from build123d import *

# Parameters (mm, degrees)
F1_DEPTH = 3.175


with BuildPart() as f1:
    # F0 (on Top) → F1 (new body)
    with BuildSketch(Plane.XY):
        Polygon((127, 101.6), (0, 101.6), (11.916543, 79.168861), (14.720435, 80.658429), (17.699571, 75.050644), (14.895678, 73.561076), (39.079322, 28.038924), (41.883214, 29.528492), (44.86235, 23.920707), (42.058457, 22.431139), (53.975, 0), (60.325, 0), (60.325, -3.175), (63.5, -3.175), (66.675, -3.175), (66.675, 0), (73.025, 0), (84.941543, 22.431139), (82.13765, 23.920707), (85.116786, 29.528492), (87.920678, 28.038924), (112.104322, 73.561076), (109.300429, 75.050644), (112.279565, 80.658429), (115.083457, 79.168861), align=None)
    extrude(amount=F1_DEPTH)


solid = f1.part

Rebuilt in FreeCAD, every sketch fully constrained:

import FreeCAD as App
import Part
import Sketcher
from FreeCAD import Vector
Q = App.Units.Quantity

doc = App.newDocument("Part")
body = doc.addObject("PartDesign::Body", "Body")

sketch1 = doc.addObject("Sketcher::SketchObject", "Sketch")
body.addObject(sketch1)
sketch1.AttachmentSupport = (doc.XY_Plane, [""])
sketch1.MapMode = "FlatFace"
sketch1.addGeometry(Part.LineSegment(Vector(127, 101.6, 0), Vector(0, 101.6, 0)), False)
sketch1.addGeometry(Part.LineSegment(Vector(0, 101.6, 0), Vector(11.916543, 79.168861, 0)), False)
sketch1.addGeometry(Part.LineSegment(Vector(11.916543, 79.168861, 0), Vector(14.720435, 80.658429, 0)), False)
sketch1.addGeometry(Part.LineSegment(Vector(14.720435, 80.658429, 0), Vector(17.699571, 75.050644, 0)), False)
sketch1.addGeometry(Part.LineSegment(Vector(17.699571, 75.050644, 0), Vector(14.895678, 73.561076, 0)), False)
sketch1.addGeometry(Part.LineSegment(Vector(14.895678, 73.561076, 0), Vector(39.079322, 28.038924, 0)), False)
sketch1.addGeometry(Part.LineSegment(Vector(39.079322, 28.038924, 0), Vector(41.883214, 29.528492, 0)), False)
sketch1.addGeometry(Part.LineSegment(Vector(41.883214, 29.528492, 0), Vector(44.86235, 23.920707, 0)), False)
sketch1.addGeometry(Part.LineSegment(Vector(44.86235, 23.920707, 0), Vector(42.058457, 22.431139, 0)), False)
sketch1.addGeometry(Part.LineSegment(Vector(42.058457, 22.431139, 0), Vector(53.975, 0, 0)), False)
sketch1.addGeometry(Part.LineSegment(Vector(53.975, 0, 0), Vector(60.325, 0, 0)), False)
sketch1.addGeometry(Part.LineSegment(Vector(60.325, 0, 0), Vector(60.325, -3.175, 0)), False)
sketch1.addGeometry(Part.LineSegment(Vector(60.325, -3.175, 0), Vector(66.675, -3.175, 0)), False)
sketch1.addGeometry(Part.LineSegment(Vector(66.675, -3.175, 0), Vector(66.675, 0, 0)), False)
sketch1.addGeometry(Part.LineSegment(Vector(66.675, 0, 0), Vector(73.025, 0, 0)), False)
sketch1.addGeometry(Part.LineSegment(Vector(73.025, 0, 0), Vector(84.941543, 22.431139, 0)), False)
sketch1.addGeometry(Part.LineSegment(Vector(84.941543, 22.431139, 0), Vector(82.13765, 23.920707, 0)), False)
sketch1.addGeometry(Part.LineSegment(Vector(82.13765, 23.920707, 0), Vector(85.116786, 29.528492, 0)), False)
sketch1.addGeometry(Part.LineSegment(Vector(85.116786, 29.528492, 0), Vector(87.920678, 28.038924, 0)), False)
sketch1.addGeometry(Part.LineSegment(Vector(87.920678, 28.038924, 0), Vector(112.104322, 73.561076, 0)), False)
sketch1.addGeometry(Part.LineSegment(Vector(112.104322, 73.561076, 0), Vector(109.300429, 75.050644, 0)), False)
sketch1.addGeometry(Part.LineSegment(Vector(109.300429, 75.050644, 0), Vector(112.279565, 80.658429, 0)), False)
sketch1.addGeometry(Part.LineSegment(Vector(112.279565, 80.658429, 0), Vector(115.083457, 79.168861, 0)), False)
sketch1.addGeometry(Part.LineSegment(Vector(115.083457, 79.168861, 0), Vector(127, 101.6, 0)), False)
sketch1.addConstraint(Sketcher.Constraint("Coincident", 0, 2, 1, 1))
sketch1.addConstraint(Sketcher.Constraint("Coincident", 1, 2, 2, 1))
sketch1.addConstraint(Sketcher.Constraint("Coincident", 2, 2, 3, 1))
sketch1.addConstraint(Sketcher.Constraint("Coincident", 3, 2, 4, 1))
sketch1.addConstraint(Sketcher.Constraint("Coincident", 4, 2, 5, 1))
sketch1.addConstraint(Sketcher.Constraint("Coincident", 5, 2, 6, 1))
sketch1.addConstraint(Sketcher.Constraint("Coincident", 6, 2, 7, 1))
sketch1.addConstraint(Sketcher.Constraint("Coincident", 7, 2, 8, 1))
sketch1.addConstraint(Sketcher.Constraint("Coincident", 8, 2, 9, 1))
sketch1.addConstraint(Sketcher.Constraint("Coincident", 9, 2, 10, 1))
sketch1.addConstraint(Sketcher.Constraint("Coincident", 10, 2, 11, 1))
sketch1.addConstraint(Sketcher.Constraint("Coincident", 11, 2, 12, 1))
sketch1.addConstraint(Sketcher.Constraint("Coincident", 12, 2, 13, 1))
sketch1.addConstraint(Sketcher.Constraint("Coincident", 13, 2, 14, 1))
sketch1.addConstraint(Sketcher.Constraint("Coincident", 14, 2, 15, 1))
sketch1.addConstraint(Sketcher.Constraint("Coincident", 15, 2, 16, 1))
sketch1.addConstraint(Sketcher.Constraint("Coincident", 16, 2, 17, 1))
sketch1.addConstraint(Sketcher.Constraint("Coincident", 17, 2, 18, 1))
sketch1.addConstraint(Sketcher.Constraint("Coincident", 18, 2, 19, 1))
sketch1.addConstraint(Sketcher.Constraint("Coincident", 19, 2, 20, 1))
sketch1.addConstraint(Sketcher.Constraint("Coincident", 20, 2, 21, 1))
sketch1.addConstraint(Sketcher.Constraint("Coincident", 21, 2, 22, 1))
sketch1.addConstraint(Sketcher.Constraint("Coincident", 22, 2, 23, 1))
sketch1.addConstraint(Sketcher.Constraint("Coincident", 23, 2, 0, 1))
sketch1.addConstraint(Sketcher.Constraint("Horizontal", 0))
sketch1.addConstraint(Sketcher.Constraint("Horizontal", 10))
sketch1.addConstraint(Sketcher.Constraint("Vertical", 11))
sketch1.addConstraint(Sketcher.Constraint("Horizontal", 12))
sketch1.addConstraint(Sketcher.Constraint("Vertical", 13))
sketch1.addConstraint(Sketcher.Constraint("Horizontal", 14))
sketch1.addConstraint(Sketcher.Constraint("PointOnObject", 0, 2, -2))
sketch1.addConstraint(Sketcher.Constraint("PointOnObject", 9, 2, -1))
sketch1.addConstraint(Sketcher.Constraint("PointOnObject", 13, 2, -1))
sketch1.addConstraint(Sketcher.Constraint("Perpendicular", 1, 2))
sketch1.addConstraint(Sketcher.Constraint("Perpendicular", 2, 3))
sketch1.addConstraint(Sketcher.Constraint("Perpendicular", 3, 4))
sketch1.addConstraint(Sketcher.Constraint("Perpendicular", 4, 5))
sketch1.addConstraint(Sketcher.Constraint("Perpendicular", 5, 6))
sketch1.addConstraint(Sketcher.Constraint("Perpendicular", 6, 7))
sketch1.addConstraint(Sketcher.Constraint("Perpendicular", 7, 8))
sketch1.addConstraint(Sketcher.Constraint("Perpendicular", 8, 9))
sketch1.addConstraint(Sketcher.Constraint("Perpendicular", 15, 16))
sketch1.addConstraint(Sketcher.Constraint("Perpendicular", 16, 17))
sketch1.addConstraint(Sketcher.Constraint("Perpendicular", 17, 18))
sketch1.addConstraint(Sketcher.Constraint("Perpendicular", 18, 19))
sketch1.addConstraint(Sketcher.Constraint("Perpendicular", 19, 20))
sketch1.addConstraint(Sketcher.Constraint("Perpendicular", 20, 21))
sketch1.addConstraint(Sketcher.Constraint("Perpendicular", 21, 22))
sketch1.addConstraint(Sketcher.Constraint("Perpendicular", 22, 23))
sketch1.addConstraint(Sketcher.Constraint("Horizontal", 8, 2, 15, 2))
sketch1.addConstraint(Sketcher.Constraint("Horizontal", 7, 2, 16, 2))
sketch1.addConstraint(Sketcher.Constraint("Horizontal", 6, 2, 17, 2))
sketch1.addConstraint(Sketcher.Constraint("Horizontal", 5, 2, 18, 2))
sketch1.addConstraint(Sketcher.Constraint("Horizontal", 4, 2, 19, 2))
sketch1.addConstraint(Sketcher.Constraint("Horizontal", 3, 2, 20, 2))
sketch1.addConstraint(Sketcher.Constraint("Horizontal", 2, 2, 21, 2))
sketch1.addConstraint(Sketcher.Constraint("Horizontal", 1, 2, 22, 2))
sketch1.addConstraint(Sketcher.Constraint("Equal", 10, 12))
sketch1.addConstraint(Sketcher.Constraint("Equal", 12, 14))
sketch1.addConstraint(Sketcher.Constraint("Equal", 2, 4))
sketch1.addConstraint(Sketcher.Constraint("Equal", 4, 6))
sketch1.addConstraint(Sketcher.Constraint("Equal", 3, 7))
sketch1.addConstraint(Sketcher.Constraint("Equal", 6, 8))
sketch1.addConstraint(Sketcher.Constraint("Equal", 1, 9))
sketch1.addConstraint(Sketcher.Constraint("Equal", 9, 15))
sketch1.addConstraint(Sketcher.Constraint("DistanceX", 0, 2, 0, 1, Q("5 in")))
sketch1.addConstraint(Sketcher.Constraint("Distance", 1, Q("1 in")))
sketch1.addConstraint(Sketcher.Constraint("DistanceY", -1, 1, 0, 2, Q("4 in")))
sketch1.addConstraint(Sketcher.Constraint("DistanceX", 10, 1, 10, 2, Q("0.25 in")))
sketch1.addConstraint(Sketcher.Constraint("Distance", 3, Q("0.25 in")))
sketch1.addConstraint(Sketcher.Constraint("DistanceY", 11, 2, 11, 1, Q("0.125 in")))
sketch1.addConstraint(Sketcher.Constraint("Distance", 2, Q("0.125 in")))
pad1 = doc.addObject("PartDesign::Pad", "Pad")
body.addObject(pad1)
pad1.Profile = sketch1
pad1.Length = Q("0.125 in")

doc.recompute()
